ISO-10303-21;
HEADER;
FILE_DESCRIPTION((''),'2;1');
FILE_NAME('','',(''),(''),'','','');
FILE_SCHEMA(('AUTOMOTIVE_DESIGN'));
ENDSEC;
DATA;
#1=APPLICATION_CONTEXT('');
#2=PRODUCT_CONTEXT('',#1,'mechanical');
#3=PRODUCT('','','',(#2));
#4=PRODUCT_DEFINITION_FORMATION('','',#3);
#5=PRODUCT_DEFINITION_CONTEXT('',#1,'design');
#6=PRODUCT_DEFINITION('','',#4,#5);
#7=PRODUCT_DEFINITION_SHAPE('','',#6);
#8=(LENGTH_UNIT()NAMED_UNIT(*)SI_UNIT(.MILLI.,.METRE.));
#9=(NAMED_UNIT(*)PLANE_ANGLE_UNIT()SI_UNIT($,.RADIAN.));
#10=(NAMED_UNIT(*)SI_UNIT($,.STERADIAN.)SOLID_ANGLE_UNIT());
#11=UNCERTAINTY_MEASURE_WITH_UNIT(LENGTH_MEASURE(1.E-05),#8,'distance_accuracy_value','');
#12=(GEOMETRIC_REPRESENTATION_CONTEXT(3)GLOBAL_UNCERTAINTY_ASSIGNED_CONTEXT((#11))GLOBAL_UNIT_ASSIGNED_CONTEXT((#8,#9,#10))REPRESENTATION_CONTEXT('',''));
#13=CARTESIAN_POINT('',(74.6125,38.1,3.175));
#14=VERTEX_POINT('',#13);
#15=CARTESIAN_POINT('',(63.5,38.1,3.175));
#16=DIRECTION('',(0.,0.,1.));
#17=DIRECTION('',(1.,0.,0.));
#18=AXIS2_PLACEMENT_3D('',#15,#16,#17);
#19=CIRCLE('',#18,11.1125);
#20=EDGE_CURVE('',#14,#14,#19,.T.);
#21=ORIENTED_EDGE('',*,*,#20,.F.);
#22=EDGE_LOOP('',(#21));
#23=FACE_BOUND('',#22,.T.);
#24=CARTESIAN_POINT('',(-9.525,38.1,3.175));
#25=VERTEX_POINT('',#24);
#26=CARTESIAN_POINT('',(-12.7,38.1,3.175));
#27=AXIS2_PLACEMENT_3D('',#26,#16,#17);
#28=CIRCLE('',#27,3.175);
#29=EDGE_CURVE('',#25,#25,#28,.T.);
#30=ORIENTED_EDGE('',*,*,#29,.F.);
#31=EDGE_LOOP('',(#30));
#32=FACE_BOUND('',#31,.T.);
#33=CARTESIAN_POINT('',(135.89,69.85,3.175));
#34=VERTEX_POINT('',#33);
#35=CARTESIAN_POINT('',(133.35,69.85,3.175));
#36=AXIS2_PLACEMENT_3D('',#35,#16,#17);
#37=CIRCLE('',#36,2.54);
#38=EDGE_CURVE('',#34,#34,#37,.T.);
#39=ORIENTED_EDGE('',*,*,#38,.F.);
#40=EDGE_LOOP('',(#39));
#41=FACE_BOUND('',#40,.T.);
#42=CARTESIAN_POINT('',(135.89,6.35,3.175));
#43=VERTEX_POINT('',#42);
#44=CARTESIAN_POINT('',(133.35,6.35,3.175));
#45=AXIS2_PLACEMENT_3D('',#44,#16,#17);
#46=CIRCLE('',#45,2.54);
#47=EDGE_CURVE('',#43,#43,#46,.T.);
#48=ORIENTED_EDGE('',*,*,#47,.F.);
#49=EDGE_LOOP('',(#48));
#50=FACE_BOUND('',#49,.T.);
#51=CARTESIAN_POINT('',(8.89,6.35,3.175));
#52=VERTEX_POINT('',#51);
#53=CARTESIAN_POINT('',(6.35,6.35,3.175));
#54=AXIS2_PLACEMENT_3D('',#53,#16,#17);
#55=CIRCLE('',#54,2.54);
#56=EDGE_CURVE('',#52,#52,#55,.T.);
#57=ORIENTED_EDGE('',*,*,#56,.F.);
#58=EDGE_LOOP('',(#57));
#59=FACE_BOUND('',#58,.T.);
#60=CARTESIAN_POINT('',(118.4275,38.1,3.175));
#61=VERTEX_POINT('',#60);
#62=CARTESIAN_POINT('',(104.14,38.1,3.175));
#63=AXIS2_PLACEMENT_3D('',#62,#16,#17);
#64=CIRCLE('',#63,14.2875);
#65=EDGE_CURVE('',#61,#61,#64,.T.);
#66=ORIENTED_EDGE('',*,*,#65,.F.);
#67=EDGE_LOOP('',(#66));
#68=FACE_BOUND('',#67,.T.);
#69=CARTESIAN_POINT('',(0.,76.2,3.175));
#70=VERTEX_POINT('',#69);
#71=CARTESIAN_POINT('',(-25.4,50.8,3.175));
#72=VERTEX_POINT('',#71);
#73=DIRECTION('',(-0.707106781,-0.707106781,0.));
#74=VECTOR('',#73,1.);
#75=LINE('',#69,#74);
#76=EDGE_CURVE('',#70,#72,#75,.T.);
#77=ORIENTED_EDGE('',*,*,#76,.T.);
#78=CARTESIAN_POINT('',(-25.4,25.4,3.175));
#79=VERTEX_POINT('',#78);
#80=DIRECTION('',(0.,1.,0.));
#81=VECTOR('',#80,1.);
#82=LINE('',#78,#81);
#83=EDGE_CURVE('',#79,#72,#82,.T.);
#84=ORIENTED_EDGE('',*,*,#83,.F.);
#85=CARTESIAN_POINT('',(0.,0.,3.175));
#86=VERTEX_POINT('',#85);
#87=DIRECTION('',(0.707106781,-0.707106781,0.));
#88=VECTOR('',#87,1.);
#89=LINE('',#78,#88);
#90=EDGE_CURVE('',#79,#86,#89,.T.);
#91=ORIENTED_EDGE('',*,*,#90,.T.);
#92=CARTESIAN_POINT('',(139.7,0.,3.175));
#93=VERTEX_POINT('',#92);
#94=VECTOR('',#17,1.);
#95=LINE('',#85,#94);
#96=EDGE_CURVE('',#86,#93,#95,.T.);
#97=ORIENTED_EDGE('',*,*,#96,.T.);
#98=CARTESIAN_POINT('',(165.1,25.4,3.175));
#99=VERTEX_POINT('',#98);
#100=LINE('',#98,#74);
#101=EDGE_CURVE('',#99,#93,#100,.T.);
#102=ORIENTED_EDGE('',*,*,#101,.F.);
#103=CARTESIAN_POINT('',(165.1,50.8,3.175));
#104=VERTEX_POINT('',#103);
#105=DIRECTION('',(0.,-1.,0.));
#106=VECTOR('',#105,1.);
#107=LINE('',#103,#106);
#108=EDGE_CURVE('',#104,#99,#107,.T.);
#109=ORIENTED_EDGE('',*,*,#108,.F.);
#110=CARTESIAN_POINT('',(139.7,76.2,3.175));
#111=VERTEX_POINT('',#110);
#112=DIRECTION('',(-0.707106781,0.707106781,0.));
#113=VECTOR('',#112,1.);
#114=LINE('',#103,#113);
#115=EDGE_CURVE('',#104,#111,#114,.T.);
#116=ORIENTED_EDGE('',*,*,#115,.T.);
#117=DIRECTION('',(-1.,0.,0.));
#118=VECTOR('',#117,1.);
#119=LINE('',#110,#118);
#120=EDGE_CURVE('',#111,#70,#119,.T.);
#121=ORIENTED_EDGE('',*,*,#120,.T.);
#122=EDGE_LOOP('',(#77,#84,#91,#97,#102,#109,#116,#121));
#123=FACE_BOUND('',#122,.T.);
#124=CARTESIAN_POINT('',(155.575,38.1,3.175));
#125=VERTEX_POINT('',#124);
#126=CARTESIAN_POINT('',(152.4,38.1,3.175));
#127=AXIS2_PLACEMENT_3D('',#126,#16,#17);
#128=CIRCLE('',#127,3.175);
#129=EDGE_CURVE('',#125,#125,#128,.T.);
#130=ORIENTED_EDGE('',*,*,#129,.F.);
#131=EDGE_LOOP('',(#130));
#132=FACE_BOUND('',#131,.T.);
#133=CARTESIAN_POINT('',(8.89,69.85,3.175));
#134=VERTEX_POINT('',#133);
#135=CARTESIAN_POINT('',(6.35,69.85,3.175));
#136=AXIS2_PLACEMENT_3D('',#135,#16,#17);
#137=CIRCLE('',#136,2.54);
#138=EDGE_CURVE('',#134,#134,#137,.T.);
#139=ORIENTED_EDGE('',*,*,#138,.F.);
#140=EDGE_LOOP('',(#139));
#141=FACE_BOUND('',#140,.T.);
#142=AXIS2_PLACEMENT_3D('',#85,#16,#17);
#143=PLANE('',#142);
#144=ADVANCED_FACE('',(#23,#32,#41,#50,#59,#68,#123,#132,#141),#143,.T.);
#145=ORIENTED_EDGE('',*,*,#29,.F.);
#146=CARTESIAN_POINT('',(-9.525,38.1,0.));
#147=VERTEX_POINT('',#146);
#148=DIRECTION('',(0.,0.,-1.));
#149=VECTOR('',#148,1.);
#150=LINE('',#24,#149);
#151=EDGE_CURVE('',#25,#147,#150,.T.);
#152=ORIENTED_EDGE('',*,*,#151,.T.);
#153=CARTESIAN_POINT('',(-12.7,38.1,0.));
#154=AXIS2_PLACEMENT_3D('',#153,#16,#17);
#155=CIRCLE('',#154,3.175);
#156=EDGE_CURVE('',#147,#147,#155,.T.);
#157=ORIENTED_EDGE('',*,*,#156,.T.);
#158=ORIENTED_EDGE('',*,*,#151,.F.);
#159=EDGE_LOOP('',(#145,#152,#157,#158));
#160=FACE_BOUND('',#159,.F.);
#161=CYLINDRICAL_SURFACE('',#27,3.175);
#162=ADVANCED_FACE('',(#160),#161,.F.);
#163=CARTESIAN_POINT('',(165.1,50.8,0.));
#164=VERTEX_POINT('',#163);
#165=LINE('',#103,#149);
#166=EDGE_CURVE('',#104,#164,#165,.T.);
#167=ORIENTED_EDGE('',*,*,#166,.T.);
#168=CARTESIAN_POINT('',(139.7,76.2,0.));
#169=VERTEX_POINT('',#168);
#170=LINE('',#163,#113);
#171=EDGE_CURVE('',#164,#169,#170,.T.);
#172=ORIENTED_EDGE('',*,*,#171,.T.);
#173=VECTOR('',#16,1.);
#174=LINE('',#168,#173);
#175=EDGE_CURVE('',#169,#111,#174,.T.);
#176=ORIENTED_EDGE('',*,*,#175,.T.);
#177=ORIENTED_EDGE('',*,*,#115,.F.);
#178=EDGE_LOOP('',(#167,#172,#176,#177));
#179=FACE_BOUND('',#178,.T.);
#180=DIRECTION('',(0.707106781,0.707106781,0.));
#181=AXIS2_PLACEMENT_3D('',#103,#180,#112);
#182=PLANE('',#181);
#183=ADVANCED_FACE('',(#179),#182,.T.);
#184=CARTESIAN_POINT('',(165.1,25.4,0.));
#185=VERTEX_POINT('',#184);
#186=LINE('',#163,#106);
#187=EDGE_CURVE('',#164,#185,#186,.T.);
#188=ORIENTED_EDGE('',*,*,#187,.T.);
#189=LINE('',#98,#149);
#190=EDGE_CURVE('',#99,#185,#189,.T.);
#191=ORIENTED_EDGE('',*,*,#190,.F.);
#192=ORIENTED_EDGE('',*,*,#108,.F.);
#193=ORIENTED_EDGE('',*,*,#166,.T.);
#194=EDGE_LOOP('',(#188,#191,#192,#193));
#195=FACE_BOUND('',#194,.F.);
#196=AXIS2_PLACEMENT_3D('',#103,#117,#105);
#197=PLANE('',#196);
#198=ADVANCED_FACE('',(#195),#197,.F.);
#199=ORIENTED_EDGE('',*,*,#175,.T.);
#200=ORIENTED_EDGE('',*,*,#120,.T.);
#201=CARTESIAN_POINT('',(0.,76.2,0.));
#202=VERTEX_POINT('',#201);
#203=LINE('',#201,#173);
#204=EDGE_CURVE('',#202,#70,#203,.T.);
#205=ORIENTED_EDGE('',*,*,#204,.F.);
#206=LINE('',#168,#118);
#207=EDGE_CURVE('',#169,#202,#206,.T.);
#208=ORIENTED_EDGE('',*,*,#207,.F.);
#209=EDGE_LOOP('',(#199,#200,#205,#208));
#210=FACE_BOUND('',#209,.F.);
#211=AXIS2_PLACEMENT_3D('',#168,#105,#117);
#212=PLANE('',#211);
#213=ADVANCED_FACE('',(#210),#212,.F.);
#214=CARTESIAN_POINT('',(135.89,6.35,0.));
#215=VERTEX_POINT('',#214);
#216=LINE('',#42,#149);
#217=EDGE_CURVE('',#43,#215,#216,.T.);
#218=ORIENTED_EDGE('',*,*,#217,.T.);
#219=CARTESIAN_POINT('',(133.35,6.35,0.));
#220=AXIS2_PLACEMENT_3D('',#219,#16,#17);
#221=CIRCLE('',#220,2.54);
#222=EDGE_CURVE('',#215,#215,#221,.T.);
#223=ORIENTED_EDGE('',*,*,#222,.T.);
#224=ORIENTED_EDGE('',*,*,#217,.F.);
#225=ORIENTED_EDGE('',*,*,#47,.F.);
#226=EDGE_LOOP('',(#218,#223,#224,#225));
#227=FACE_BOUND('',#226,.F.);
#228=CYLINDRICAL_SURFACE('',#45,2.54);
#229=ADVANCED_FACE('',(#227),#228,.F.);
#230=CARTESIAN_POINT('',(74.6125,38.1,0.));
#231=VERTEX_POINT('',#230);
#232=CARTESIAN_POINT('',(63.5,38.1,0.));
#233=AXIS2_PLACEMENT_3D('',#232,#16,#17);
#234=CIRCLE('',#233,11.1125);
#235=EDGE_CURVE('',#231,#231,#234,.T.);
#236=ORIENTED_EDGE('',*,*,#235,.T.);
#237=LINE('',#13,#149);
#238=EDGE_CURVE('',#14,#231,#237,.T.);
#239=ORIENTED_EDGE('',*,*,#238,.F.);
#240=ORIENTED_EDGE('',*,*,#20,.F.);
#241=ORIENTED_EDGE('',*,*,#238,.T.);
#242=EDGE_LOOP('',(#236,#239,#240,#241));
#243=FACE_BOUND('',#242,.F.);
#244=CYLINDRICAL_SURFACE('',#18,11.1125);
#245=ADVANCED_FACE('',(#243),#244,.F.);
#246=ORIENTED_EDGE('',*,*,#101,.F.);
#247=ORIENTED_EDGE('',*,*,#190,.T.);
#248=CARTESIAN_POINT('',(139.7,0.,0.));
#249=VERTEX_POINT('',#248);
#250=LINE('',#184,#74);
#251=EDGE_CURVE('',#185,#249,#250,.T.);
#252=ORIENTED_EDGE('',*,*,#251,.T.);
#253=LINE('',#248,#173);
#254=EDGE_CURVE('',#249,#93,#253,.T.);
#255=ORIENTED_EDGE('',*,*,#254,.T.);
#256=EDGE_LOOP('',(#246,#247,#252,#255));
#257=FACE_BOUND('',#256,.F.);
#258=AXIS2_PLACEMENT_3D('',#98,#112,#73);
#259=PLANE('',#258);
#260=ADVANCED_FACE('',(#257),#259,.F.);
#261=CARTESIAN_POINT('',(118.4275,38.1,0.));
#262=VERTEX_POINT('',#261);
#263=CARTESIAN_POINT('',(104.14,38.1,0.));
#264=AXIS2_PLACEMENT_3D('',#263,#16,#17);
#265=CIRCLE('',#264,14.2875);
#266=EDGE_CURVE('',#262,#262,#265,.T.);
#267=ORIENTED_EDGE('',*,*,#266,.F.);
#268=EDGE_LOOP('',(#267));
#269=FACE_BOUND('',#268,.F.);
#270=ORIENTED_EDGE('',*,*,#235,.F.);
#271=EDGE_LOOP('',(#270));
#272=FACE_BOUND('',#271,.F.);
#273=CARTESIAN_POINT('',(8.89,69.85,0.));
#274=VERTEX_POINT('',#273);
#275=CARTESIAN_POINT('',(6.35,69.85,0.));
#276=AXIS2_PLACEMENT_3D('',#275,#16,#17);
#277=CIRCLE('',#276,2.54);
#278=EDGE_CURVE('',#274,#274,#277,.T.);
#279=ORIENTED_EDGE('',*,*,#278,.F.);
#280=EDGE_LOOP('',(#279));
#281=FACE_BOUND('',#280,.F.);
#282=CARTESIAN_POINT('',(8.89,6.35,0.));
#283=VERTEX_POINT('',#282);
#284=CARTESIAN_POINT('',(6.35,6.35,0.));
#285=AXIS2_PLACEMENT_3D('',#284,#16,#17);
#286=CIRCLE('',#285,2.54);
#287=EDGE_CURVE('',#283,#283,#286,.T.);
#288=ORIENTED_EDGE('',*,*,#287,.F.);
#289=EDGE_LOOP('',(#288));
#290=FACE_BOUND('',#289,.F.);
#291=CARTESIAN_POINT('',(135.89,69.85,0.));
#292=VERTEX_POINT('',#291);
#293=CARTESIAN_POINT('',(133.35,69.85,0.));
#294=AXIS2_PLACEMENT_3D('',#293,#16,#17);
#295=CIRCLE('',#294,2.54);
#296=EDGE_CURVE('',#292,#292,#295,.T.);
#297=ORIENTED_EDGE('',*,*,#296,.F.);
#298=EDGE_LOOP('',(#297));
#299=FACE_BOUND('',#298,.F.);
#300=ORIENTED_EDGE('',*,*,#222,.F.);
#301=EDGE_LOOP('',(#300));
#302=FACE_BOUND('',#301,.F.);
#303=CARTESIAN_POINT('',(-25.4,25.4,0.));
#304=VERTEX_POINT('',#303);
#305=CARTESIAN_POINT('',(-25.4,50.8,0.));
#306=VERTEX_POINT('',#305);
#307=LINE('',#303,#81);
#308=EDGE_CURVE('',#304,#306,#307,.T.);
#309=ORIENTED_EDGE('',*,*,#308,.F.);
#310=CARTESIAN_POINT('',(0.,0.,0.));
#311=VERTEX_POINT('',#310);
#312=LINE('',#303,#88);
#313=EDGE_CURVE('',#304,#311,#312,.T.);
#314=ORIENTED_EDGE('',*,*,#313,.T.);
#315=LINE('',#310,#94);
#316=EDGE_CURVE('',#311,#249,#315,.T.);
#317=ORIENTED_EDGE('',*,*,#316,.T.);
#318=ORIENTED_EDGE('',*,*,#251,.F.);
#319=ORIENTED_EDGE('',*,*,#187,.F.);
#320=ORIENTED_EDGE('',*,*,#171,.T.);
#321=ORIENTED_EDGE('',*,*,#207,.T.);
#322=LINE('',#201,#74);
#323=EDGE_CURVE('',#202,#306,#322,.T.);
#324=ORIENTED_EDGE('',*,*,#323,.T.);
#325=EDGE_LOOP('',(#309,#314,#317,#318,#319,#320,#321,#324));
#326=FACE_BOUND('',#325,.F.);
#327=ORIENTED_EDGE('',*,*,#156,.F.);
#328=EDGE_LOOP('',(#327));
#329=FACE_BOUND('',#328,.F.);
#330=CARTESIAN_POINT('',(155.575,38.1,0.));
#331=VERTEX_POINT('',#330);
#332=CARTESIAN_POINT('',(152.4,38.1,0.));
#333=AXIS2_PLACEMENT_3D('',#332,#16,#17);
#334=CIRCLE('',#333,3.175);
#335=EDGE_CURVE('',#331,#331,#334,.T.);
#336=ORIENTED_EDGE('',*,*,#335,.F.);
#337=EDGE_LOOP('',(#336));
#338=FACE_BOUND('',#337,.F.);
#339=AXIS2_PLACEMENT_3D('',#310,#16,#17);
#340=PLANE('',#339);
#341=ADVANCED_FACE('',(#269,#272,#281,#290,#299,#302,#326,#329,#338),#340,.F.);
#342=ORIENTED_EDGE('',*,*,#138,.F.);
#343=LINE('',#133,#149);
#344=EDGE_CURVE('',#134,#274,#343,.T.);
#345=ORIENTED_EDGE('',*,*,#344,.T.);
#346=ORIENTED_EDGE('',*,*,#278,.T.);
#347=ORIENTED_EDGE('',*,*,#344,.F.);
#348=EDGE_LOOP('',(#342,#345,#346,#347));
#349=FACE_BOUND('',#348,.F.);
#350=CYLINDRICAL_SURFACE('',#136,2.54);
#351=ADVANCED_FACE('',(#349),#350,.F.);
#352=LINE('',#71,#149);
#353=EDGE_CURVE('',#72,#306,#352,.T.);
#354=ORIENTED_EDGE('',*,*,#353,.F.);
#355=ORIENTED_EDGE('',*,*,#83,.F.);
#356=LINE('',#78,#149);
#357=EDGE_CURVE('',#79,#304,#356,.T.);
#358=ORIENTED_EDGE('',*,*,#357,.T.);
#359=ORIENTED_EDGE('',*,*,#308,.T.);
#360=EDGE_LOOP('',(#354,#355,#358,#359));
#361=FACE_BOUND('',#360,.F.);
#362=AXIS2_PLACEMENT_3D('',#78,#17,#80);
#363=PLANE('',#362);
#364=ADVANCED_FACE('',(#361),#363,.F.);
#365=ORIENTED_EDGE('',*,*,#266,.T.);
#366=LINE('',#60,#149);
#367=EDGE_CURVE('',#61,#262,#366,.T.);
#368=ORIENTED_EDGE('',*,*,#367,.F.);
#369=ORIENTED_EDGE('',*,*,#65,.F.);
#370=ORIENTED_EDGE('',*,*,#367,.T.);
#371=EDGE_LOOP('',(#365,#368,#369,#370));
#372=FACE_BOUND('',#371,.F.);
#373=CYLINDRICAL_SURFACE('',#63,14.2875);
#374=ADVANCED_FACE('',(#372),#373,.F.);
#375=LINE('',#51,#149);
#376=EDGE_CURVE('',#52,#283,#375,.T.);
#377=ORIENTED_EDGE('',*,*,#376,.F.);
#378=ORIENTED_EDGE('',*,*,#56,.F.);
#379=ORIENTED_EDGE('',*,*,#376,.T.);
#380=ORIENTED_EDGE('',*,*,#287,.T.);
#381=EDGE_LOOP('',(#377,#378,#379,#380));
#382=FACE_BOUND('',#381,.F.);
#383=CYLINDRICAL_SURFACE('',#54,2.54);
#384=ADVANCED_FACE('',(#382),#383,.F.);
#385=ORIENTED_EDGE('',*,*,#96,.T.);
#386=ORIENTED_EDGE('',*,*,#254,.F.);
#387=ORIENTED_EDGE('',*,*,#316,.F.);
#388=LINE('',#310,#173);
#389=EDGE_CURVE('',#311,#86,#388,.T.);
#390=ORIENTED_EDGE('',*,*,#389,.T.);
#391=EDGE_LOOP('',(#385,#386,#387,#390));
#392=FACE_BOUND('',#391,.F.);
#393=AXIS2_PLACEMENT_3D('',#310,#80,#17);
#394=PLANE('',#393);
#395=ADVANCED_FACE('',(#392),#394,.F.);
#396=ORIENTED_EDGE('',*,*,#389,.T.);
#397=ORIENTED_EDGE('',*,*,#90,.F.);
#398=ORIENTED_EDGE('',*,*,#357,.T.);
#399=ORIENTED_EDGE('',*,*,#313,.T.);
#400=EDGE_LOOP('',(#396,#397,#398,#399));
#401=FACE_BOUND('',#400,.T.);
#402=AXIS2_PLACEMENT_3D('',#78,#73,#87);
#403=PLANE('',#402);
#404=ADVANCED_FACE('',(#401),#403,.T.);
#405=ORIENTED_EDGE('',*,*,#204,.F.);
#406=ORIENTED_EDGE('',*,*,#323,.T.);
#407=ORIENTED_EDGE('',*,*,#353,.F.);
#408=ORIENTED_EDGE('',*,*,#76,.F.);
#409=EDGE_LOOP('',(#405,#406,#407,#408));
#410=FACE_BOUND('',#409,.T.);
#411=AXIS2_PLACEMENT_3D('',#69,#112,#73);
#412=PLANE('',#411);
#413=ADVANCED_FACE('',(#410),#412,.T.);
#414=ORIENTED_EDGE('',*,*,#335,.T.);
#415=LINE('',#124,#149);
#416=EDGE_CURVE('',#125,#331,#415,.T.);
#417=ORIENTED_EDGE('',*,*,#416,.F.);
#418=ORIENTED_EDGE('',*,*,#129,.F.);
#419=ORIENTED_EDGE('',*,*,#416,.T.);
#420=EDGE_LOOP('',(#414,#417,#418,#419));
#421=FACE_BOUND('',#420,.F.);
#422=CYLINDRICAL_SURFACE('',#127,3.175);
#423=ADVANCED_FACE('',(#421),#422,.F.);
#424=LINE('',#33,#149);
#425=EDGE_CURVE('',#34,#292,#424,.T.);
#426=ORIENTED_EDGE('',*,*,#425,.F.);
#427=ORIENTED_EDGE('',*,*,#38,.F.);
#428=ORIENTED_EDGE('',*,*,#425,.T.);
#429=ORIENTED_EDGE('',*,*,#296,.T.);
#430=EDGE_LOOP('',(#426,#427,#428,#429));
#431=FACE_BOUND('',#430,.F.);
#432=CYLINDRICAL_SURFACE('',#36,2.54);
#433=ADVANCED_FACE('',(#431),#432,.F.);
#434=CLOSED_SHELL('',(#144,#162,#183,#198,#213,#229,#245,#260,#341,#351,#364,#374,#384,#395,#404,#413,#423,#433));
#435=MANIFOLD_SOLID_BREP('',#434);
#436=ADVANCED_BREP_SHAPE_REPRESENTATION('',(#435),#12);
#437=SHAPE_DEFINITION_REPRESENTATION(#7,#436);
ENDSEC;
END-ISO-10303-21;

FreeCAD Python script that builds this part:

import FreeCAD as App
import Part
import Sketcher

V = App.Vector
Q = App.Units.Quantity


def add_polygon(sketch, points):
    """Adds a closed chain of lines whose ends are joined by coincident constraints."""
    first, n = sketch.GeometryCount, len(points)
    for a, b in zip(points, points[1:] + points[:1]):
        sketch.addGeometry(Part.LineSegment(App.Vector(*a, 0), App.Vector(*b, 0)), False)
    for i in range(n):
        sketch.addConstraint(Sketcher.Constraint("Coincident", first + i, 2, first + (i + 1) % n, 1))

doc = App.newDocument("Part")
body = doc.addObject("PartDesign::Body", "Body")

# Sketch on XY plane
sketch1 = body.newObject("Sketcher::SketchObject", "Sketch")
sketch1.AttachmentSupport = (doc.getObject("XY_Plane"), [""])
sketch1.MapMode = "FlatFace"
add_polygon(sketch1, [(0, 76), (0, 0), (140, 0), (140, 76)])  # lines 0-3
sketch1.addConstraint([
    Sketcher.Constraint("Vertical", 0),
    Sketcher.Constraint("Horizontal", 1),
    Sketcher.Constraint("Vertical", 2),
    Sketcher.Constraint("Horizontal", 3),
    Sketcher.Constraint("Coincident", 0, 2, -1, 1),
    Sketcher.Constraint("DistanceY", 0, 2, 0, 1, Q("3 in")),
    Sketcher.Constraint("DistanceX", 1, 1, 1, 2, Q("5.5 in")),
])
pad1 = body.newObject("PartDesign::Pad", "Pad")
pad1.Profile = sketch1
pad1.Length = Q("0.125 in")

# Sketch on XY plane
sketch2 = body.newObject("Sketcher::SketchObject", "Sketch001")
sketch2.AttachmentSupport = (doc.getObject("XY_Plane"), [""])
sketch2.MapMode = "FlatFace"
sketch2.AttachmentOffset = App.Placement(V(0, 0, 0.125 * 25.4), App.Rotation())
sketch2.addGeometry([
    Part.Circle(V(6.3, 69.8, 0), V(0, 0, 1), 2.5),  # 0
    Part.Circle(V(6.3, 6.3, 0), V(0, 0, 1), 2.5),  # 1
    Part.Circle(V(133.3, 6.3, 0), V(0, 0, 1), 2.5),  # 2
    Part.Circle(V(133.3, 69.8, 0), V(0, 0, 1), 2.5),  # 3
    Part.Circle(V(63.5, 38.1, 0), V(0, 0, 1), 11.1),  # 4
    Part.Circle(V(104.1, 38.1, 0), V(0, 0, 1), 14.3),  # 5
], False)
sketch2.addConstraint([
    Sketcher.Constraint("Equal", 0, 1),
    Sketcher.Constraint("Equal", 1, 2),
    Sketcher.Constraint("Equal", 2, 3),
    Sketcher.Constraint("Horizontal", 1, 3, 2, 3),
    Sketcher.Constraint("Horizontal", 0, 3, 3, 3),
    Sketcher.Constraint("Horizontal", 4, 3, 5, 3),
    Sketcher.Constraint("Vertical", 0, 3, 1, 3),
    Sketcher.Constraint("Vertical", 2, 3, 3, 3),
    Sketcher.Constraint("Diameter", 0, Q("0.2 in")),
    Sketcher.Constraint("Diameter", 4, Q("0.875 in")),
    Sketcher.Constraint("Diameter", 5, Q("1.125 in")),
    Sketcher.Constraint("DistanceX", -1, 1, 4, 3, Q("2.5 in")),
    Sketcher.Constraint("DistanceY", -1, 1, 4, 3, Q("1.5 in")),
    Sketcher.Constraint("DistanceX", -1, 1, 5, 3, Q("4.1 in")),
    Sketcher.Constraint("DistanceY", 1, 3, 0, 3, Q("2.5 in")),
    Sketcher.Constraint("DistanceX", -1, 1, 0, 3, Q("0.25 in")),
    Sketcher.Constraint("DistanceY", -1, 1, 0, 3, Q("2.75 in")),
    Sketcher.Constraint("DistanceX", -1, 1, 2, 3, Q("5.25 in")),
])
pocket1 = body.newObject("PartDesign::Pocket", "Pocket")
pocket1.Profile = sketch2
pocket1.Length = Q("0.125 in")

# Sketch on XY plane
sketch3 = body.newObject("Sketcher::SketchObject", "Sketch002")
sketch3.AttachmentSupport = (doc.getObject("XY_Plane"), [""])
sketch3.MapMode = "FlatFace"
sketch3.AttachmentOffset = App.Placement(V(0, 0, 0.125 * 25.4), App.Rotation())
add_polygon(sketch3, [(-25, 25), (0, 0), (0, 76), (-25, 51)])  # lines 0-3
add_polygon(sketch3, [(140, 0), (165, 25), (165, 51), (140, 76)])  # lines 4-7
sketch3.addConstraint([
    Sketcher.Constraint("Vertical", 1),
    Sketcher.Constraint("Vertical", 3),
    Sketcher.Constraint("Vertical", 5),
    Sketcher.Constraint("Vertical", 7),
    Sketcher.Constraint("Coincident", 0, 2, -1, 1),
    Sketcher.Constraint("PointOnObject", 7, 2, -1),
    Sketcher.Constraint("Perpendicular", 0, 2),
    Sketcher.Constraint("Parallel", 2, 4),
    Sketcher.Constraint("Perpendicular", 4, 6),
    Sketcher.Constraint("Horizontal", 3, 2, 4, 2),
    Sketcher.Constraint("Horizontal", 2, 2, 5, 2),
    Sketcher.Constraint("Horizontal", 1, 2, 6, 2),
    Sketcher.Constraint("DistanceY", 3, 2, 3, 1, Q("1 in")),
    Sketcher.Constraint("DistanceX", 2, 2, -1, 1, Q("1 in")),
    Sketcher.Constraint("DistanceX", -1, 1, 4, 2, Q("6.5 in")),
])
pad2 = body.newObject("PartDesign::Pad", "Pad001")
pad2.Profile = sketch3
pad2.Length = Q("0.125 in")
pad2.Reversed = True

# Sketch on XY plane
sketch4 = body.newObject("Sketcher::SketchObject", "Sketch003")
sketch4.AttachmentSupport = (doc.getObject("XY_Plane"), [""])
sketch4.MapMode = "FlatFace"
sketch4.AttachmentOffset = App.Placement(V(0, 0, 0.125 * 25.4), App.Rotation())
sketch4.addGeometry([
    Part.Circle(V(-12.7, 38.1, 0), V(0, 0, 1), 3.2),
    Part.Circle(V(152.4, 38.1, 0), V(0, 0, 1), 3.2),
], False)
sketch4.addConstraint([
    Sketcher.Constraint("Equal", 0, 1),
    Sketcher.Constraint("Horizontal", 0, 3, 1, 3),
    Sketcher.Constraint("Diameter", 0, Q("0.25 in")),
    Sketcher.Constraint("DistanceX", -1, 1, 1, 3, Q("6 in")),
    Sketcher.Constraint("DistanceX", 0, 3, -1, 1, Q("0.5 in")),
    Sketcher.Constraint("DistanceY", -1, 1, 0, 3, Q("1.5 in")),
])
pocket2 = body.newObject("PartDesign::Pocket", "Pocket001")
pocket2.Profile = sketch4
pocket2.Length = Q("0.125 in")

doc.recompute()
